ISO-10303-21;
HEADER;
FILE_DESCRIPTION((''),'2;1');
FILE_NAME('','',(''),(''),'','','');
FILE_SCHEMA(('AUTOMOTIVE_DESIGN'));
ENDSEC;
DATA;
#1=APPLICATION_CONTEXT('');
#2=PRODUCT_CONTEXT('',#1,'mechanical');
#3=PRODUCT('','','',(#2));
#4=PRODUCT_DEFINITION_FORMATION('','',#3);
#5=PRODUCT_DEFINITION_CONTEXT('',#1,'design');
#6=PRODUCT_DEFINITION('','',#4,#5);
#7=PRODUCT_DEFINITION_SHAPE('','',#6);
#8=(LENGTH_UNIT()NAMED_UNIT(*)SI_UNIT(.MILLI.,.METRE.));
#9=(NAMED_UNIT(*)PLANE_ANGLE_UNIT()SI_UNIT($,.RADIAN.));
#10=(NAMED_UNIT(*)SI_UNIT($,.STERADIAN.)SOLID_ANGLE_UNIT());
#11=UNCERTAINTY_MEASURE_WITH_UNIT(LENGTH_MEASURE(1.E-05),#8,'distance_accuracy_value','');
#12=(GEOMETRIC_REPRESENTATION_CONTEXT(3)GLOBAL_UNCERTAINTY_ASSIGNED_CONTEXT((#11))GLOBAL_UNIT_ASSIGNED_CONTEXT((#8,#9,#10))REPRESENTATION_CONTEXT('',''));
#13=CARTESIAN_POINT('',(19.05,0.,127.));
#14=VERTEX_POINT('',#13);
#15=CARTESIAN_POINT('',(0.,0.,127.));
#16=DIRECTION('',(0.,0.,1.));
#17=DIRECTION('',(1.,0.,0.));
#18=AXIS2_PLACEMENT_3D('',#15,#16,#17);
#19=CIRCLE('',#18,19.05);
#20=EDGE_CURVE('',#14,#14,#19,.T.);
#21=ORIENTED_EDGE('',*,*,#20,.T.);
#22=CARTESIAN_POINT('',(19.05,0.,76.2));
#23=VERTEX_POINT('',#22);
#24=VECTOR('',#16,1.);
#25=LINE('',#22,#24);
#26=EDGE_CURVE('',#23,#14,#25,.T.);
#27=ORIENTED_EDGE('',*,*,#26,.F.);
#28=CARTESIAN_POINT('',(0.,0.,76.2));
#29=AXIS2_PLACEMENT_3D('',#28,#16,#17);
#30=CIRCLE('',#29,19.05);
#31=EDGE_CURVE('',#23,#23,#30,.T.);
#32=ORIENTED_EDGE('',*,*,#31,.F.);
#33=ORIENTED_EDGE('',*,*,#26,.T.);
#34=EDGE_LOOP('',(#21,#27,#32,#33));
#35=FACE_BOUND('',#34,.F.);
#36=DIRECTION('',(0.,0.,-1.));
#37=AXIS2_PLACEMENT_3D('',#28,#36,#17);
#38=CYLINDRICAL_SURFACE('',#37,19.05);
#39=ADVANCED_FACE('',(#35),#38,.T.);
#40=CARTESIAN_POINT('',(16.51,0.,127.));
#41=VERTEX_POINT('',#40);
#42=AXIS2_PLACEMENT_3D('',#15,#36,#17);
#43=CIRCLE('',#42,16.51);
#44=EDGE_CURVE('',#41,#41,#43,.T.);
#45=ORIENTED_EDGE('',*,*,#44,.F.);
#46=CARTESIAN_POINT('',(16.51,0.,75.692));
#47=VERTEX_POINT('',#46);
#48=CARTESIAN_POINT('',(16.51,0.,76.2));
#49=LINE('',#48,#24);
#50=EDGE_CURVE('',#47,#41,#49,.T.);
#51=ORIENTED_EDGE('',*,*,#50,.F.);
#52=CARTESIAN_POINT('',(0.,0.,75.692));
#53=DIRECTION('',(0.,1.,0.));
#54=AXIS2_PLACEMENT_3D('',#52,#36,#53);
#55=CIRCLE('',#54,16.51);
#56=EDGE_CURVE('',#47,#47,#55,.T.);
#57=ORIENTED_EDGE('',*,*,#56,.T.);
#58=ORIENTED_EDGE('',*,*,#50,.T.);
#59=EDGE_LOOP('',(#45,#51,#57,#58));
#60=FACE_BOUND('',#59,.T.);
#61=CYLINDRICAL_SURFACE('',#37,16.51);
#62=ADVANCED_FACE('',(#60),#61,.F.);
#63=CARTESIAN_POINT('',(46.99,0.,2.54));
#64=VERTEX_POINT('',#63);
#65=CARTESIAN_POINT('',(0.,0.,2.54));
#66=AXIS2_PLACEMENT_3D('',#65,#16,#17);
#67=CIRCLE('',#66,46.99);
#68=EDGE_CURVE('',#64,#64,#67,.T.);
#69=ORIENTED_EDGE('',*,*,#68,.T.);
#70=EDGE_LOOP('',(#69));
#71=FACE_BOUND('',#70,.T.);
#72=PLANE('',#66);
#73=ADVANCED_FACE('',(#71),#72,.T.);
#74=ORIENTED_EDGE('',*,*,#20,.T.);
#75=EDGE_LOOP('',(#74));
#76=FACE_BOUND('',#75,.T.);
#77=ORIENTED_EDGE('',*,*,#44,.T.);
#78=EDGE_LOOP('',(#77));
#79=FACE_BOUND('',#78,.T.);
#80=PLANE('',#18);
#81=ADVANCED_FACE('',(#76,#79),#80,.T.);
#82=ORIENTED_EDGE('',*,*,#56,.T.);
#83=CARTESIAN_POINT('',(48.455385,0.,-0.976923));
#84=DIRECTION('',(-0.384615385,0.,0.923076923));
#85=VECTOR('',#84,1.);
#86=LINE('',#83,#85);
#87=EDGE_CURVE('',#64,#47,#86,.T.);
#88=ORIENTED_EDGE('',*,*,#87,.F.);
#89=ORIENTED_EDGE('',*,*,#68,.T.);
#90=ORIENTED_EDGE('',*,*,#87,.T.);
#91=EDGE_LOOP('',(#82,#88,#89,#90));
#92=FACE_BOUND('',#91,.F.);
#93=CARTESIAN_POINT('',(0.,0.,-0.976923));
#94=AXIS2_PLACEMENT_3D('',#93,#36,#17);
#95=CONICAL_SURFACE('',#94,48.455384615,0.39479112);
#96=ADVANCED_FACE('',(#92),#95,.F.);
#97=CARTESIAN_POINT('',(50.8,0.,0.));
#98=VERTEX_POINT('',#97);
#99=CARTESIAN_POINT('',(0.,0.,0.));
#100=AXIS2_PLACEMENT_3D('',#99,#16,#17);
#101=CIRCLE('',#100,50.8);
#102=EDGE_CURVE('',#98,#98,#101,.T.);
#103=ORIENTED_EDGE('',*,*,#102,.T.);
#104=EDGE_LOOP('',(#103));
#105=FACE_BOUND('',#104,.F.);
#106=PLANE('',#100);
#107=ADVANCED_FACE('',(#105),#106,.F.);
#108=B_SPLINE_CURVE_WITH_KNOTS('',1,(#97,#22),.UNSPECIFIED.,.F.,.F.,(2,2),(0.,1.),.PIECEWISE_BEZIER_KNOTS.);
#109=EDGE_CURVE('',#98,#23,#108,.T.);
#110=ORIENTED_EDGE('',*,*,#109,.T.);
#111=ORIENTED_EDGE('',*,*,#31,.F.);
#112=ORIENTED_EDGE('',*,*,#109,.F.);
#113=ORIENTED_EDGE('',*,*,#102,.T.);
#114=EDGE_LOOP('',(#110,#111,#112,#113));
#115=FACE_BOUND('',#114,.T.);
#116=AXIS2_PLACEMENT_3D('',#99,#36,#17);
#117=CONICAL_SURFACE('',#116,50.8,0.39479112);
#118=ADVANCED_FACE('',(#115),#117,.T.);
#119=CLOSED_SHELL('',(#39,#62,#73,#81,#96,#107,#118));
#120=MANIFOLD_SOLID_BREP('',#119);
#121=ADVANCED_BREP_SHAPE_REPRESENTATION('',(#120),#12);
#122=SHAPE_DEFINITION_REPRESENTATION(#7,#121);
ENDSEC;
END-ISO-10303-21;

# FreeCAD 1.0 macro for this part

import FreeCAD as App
import Part
import Sketcher

V = App.Vector
Q = App.Units.Quantity


def faces_at(feature, points):
    """Names of the faces that lie closest to the given points."""
    faces = feature.Shape.Faces
    near = lambda p: min(range(len(faces)), key=lambda i: faces[i].distToShape(Part.Vertex(*p))[0])
    return sorted({f"Face{near(p) + 1}" for p in points})

doc = App.newDocument("Part")
params = doc.addObject("Spreadsheet::Sheet", "Params")
for row, (alias, value) in enumerate([
    ("sketch1_diameter", "4 in"),
    ("sketch2_diameter", "1.5 in"),
    ("sketch3_diameter", "1.5 in"),
    ("pad1_length", "2 in"),
    ("thickness_wall", "0.1 in"),
], start=1):
    params.set(f"A{row}", alias)
    params.set(f"B{row}", "=" + value)
    params.setAlias(f"B{row}", alias)

body = doc.addObject("PartDesign::Body", "Body")

sketch1 = body.newObject("Sketcher::SketchObject", "Sketch")
sketch1.AttachmentSupport = (doc.getObject("XY_Plane"), [""])
sketch1.MapMode = "FlatFace"
sketch1.addGeometry(Part.Circle(V(0, 0, 0), V(0, 0, 1), 51), False)
sketch1.addConstraint(Sketcher.Constraint("Coincident", 0, 3, -1, 1))
sketch1.addConstraint(Sketcher.Constraint("Diameter", 0, Q("4 in")))
sketch1.setExpression("Constraints[1]", "Params.sketch1_diameter")

sketch2 = body.newObject("Sketcher::SketchObject", "Sketch001")
sketch2.AttachmentSupport = (doc.getObject("XY_Plane"), [""])
sketch2.MapMode = "FlatFace"
sketch2.AttachmentOffset = App.Placement(V(0, 0, 3 * 25.4), App.Rotation())
sketch2.addGeometry(Part.Circle(V(0, 0, 0), V(0, 0, 1), 19), False)
sketch2.addConstraint(Sketcher.Constraint("Coincident", 0, 3, -1, 1))
sketch2.addConstraint(Sketcher.Constraint("Diameter", 0, Q("1.5 in")))
sketch2.setExpression("Constraints[1]", "Params.sketch2_diameter")

additiveloft = body.newObject("PartDesign::AdditiveLoft", "AdditiveLoft")
additiveloft.Profile = sketch1
additiveloft.Sections = [sketch2]

sketch3 = body.newObject("Sketcher::SketchObject", "Sketch002")
sketch3.AttachmentSupport = (doc.getObject("XY_Plane"), [""])
sketch3.MapMode = "FlatFace"
sketch3.AttachmentOffset = App.Placement(V(0, 0, 3 * 25.4), App.Rotation())
sketch3.addGeometry(Part.Circle(V(0, 0, 0), V(0, 0, 1), 19), False)
sketch3.addConstraint(Sketcher.Constraint("Coincident", 0, 3, -1, 1))
sketch3.addConstraint(Sketcher.Constraint("Diameter", 0, Q("1.5 in")))
sketch3.setExpression("Constraints[1]", "Params.sketch3_diameter")
pad1 = body.newObject("PartDesign::Pad", "Pad")
pad1.Profile = sketch3
pad1.setExpression("Length", "Params.pad1_length")
doc.recompute()

thickness = body.newObject("PartDesign::Thickness", "Thickness")
thickness.Base = (pad1, faces_at(pad1, [(0, 0, 127)]))
thickness.setExpression("Value", "Params.thickness_wall")
thickness.Reversed = True
thickness.Join = "Intersection"

doc.recompute()
